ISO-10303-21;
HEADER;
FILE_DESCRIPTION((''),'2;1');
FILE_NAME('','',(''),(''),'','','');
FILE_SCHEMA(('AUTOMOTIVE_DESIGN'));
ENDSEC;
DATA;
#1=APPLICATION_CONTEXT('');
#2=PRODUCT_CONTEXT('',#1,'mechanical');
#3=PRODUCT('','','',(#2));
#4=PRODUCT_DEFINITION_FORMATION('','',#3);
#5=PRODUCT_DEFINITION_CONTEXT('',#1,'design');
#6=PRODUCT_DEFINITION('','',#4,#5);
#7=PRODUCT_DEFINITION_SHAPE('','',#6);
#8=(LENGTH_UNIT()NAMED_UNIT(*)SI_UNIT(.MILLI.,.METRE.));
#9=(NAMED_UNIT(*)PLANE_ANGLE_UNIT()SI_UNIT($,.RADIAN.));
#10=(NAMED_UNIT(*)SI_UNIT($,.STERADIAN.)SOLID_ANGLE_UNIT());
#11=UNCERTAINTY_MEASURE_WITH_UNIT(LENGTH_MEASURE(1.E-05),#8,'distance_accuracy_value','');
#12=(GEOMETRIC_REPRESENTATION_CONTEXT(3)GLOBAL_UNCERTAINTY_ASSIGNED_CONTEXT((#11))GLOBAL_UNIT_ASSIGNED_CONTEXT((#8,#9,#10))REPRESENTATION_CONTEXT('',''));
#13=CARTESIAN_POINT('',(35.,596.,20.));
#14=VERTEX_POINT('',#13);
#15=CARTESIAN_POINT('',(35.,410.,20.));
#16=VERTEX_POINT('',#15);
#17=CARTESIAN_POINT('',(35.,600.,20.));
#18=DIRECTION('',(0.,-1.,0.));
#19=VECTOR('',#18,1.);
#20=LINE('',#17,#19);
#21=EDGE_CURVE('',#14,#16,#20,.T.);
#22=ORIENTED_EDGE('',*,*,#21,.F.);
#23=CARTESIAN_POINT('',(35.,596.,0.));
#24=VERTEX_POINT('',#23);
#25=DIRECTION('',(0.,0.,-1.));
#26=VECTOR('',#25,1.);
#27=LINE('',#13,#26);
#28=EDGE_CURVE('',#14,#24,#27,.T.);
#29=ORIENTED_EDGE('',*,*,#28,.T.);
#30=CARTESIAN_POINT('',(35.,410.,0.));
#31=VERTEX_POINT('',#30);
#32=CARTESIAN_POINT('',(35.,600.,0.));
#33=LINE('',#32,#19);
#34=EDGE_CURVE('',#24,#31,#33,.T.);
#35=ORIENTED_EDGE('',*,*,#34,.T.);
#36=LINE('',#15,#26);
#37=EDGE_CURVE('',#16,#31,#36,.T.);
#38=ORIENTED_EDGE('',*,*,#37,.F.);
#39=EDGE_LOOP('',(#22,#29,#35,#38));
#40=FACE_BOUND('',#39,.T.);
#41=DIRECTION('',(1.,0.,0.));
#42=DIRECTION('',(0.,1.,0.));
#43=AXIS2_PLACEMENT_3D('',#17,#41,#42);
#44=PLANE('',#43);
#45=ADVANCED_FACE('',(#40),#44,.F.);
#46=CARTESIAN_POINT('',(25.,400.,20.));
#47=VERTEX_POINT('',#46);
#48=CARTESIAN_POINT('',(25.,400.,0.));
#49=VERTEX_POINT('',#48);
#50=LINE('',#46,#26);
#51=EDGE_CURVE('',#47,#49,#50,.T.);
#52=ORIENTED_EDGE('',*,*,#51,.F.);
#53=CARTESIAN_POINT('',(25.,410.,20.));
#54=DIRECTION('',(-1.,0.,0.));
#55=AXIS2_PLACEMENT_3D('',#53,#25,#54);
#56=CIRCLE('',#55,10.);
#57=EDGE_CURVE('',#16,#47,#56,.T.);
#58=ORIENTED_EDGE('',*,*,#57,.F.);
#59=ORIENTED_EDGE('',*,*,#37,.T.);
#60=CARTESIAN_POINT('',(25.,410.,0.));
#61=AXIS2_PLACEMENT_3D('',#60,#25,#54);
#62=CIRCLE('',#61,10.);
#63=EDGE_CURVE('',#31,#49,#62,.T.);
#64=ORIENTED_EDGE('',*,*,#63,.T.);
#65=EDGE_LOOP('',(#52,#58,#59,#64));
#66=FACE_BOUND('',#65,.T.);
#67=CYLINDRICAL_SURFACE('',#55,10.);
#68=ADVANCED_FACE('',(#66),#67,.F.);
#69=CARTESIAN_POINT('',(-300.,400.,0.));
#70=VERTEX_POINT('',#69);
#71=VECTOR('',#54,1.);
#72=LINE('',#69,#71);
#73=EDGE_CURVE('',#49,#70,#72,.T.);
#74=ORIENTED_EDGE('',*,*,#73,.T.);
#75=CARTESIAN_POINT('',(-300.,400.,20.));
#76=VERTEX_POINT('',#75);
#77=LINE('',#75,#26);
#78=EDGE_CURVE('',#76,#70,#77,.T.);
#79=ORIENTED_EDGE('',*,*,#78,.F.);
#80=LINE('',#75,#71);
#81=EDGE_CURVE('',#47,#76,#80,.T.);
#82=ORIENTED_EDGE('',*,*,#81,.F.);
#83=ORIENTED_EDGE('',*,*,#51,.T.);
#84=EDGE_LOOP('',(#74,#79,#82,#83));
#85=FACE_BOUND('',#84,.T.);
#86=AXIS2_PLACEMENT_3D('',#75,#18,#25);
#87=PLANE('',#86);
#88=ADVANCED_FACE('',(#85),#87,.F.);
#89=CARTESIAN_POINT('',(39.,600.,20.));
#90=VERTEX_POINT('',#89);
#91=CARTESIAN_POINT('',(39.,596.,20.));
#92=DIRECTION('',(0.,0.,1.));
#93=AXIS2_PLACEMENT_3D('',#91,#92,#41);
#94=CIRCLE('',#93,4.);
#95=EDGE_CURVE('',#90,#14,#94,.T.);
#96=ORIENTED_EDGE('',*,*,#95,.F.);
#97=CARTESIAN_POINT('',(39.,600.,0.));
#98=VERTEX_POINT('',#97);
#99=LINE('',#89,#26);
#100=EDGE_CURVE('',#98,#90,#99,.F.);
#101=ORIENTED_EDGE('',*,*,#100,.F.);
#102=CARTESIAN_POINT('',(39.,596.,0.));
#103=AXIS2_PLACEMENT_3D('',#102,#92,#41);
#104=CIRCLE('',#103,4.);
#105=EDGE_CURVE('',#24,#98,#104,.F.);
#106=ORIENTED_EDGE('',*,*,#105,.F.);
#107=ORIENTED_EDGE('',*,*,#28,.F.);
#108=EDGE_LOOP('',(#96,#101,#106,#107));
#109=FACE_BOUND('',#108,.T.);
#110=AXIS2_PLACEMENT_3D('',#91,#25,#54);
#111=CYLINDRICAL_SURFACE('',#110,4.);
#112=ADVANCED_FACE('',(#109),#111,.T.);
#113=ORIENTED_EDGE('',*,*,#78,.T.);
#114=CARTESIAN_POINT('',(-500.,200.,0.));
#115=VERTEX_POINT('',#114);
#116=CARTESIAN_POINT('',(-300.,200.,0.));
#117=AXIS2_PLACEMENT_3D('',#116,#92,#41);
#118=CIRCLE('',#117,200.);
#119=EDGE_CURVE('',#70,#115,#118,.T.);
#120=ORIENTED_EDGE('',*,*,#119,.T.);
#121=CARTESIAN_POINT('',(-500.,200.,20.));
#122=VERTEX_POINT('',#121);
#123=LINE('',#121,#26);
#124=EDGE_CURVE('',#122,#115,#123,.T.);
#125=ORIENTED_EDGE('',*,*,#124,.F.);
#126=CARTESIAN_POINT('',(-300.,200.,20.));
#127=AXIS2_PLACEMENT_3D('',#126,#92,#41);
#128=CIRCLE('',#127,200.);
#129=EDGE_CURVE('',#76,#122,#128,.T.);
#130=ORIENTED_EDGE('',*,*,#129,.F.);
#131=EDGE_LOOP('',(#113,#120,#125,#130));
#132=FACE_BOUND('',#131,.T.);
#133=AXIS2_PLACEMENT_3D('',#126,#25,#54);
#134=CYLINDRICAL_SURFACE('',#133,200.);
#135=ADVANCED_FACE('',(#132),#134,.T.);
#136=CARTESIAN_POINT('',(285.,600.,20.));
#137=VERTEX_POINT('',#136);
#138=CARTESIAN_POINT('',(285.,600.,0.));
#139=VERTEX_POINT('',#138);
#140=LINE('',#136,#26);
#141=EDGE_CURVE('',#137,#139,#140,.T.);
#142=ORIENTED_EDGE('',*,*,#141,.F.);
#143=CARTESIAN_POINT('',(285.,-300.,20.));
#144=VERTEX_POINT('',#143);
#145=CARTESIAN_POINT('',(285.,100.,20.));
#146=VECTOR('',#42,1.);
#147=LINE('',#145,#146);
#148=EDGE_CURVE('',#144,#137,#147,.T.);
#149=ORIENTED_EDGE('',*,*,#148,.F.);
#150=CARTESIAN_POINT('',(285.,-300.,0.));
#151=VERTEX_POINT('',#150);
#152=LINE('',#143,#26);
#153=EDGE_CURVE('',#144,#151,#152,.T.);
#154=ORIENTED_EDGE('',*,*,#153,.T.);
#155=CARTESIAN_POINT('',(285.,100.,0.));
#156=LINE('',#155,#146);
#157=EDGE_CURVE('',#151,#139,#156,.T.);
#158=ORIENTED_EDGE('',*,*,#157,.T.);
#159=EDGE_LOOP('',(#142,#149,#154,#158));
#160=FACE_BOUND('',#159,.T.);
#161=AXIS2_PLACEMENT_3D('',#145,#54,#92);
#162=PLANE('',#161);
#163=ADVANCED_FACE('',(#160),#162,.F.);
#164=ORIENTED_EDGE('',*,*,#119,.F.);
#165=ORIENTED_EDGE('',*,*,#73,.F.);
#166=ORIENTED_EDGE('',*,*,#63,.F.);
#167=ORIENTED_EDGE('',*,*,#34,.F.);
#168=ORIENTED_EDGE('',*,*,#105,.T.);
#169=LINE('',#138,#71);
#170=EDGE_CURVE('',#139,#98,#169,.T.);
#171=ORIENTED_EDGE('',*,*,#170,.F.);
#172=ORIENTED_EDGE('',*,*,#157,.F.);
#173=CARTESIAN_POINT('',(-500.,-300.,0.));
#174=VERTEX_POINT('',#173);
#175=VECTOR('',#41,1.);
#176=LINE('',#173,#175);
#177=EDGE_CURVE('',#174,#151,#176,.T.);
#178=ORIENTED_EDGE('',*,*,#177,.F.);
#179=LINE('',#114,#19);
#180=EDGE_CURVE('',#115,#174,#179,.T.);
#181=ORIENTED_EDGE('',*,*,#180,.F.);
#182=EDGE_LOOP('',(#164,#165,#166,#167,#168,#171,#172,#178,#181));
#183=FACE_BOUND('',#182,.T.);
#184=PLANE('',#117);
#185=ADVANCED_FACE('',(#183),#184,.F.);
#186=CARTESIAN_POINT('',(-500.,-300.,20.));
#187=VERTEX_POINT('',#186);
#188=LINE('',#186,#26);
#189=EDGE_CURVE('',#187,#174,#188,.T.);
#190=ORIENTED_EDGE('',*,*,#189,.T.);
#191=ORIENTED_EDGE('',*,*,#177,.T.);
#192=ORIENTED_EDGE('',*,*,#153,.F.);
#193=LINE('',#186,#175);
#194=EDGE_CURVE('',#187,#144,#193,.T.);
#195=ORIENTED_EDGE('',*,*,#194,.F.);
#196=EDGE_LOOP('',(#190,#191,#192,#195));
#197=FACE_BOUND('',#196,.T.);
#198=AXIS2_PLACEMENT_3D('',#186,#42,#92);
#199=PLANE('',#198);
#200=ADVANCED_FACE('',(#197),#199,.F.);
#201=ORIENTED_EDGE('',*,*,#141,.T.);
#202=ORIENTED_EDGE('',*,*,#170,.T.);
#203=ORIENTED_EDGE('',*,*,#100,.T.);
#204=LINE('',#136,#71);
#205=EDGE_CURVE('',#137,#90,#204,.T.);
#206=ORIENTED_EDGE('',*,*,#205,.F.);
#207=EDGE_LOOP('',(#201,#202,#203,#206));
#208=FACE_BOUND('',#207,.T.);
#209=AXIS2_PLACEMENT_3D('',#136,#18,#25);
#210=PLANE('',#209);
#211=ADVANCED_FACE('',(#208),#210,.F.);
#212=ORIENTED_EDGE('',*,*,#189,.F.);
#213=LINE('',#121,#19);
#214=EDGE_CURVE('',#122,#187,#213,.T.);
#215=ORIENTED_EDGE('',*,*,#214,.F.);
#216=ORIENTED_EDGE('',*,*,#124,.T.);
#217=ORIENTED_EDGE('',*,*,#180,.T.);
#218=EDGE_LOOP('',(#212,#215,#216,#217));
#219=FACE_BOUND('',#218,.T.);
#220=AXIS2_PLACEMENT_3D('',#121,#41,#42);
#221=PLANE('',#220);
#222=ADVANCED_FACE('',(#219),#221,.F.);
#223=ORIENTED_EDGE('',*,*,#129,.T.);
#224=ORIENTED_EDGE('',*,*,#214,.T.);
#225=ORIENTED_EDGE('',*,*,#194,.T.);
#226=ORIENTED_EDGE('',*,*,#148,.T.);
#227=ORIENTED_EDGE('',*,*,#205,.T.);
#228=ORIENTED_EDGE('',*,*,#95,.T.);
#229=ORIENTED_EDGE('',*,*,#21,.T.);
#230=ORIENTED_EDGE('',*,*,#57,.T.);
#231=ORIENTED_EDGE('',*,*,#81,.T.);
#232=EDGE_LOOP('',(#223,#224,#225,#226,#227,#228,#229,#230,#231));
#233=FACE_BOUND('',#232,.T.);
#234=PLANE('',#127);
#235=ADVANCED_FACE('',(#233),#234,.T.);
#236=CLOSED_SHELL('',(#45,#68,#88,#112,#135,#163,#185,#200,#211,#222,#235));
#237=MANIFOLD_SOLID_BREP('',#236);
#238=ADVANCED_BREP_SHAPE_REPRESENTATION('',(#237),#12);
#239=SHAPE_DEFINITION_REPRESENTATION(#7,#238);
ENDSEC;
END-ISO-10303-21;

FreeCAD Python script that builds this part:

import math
import FreeCAD as App
import Part
import Sketcher
from FreeCAD import Vector


def edges_at(feature, points):
    """Names of the edges that pass closest to the given points."""
    edges = feature.Shape.Edges
    near = lambda p: min(range(len(edges)), key=lambda i: edges[i].distToShape(Part.Vertex(*p))[0])
    return sorted({f"Edge{near(p) + 1}" for p in points})

doc = App.newDocument("Part")
params = doc.addObject("Spreadsheet::Sheet", "Params")
for row, (alias, value) in enumerate([
    ("sketch1_radius", "200 mm"),
    ("sketch1_radius2", "10 mm"),
    ("sketch1_width", "325 mm"),
    ("sketch1_width2", "785 mm"),
    ("sketch1_height", "500 mm"),
    ("pad1_length", "20 mm"),
    ("fillet_radius", "4 mm"),
], start=1):
    params.set(f"A{row}", alias)
    params.set(f"B{row}", "=" + value)
    params.setAlias(f"B{row}", alias)

body = doc.addObject("PartDesign::Body", "Body")

# Sketch on XY plane
sketch1 = body.newObject("Sketcher::SketchObject", "Sketch")
sketch1.AttachmentSupport = (doc.getObject("XY_Plane"), [""])
sketch1.MapMode = "FlatFace"
sketch1.addGeometry(Part.LineSegment(Vector(25, 400, 0), Vector(-300, 400, 0)), False)
sketch1.addGeometry(Part.ArcOfCircle(Part.Circle(Vector(-300, 200, 0), Vector(0, 0, 1), 200), math.radians(90), math.radians(180)), False)
sketch1.addGeometry(Part.LineSegment(Vector(-500, 200, 0), Vector(-500, -300, 0)), False)
sketch1.addGeometry(Part.LineSegment(Vector(-500, -300, 0), Vector(285, -300, 0)), False)
sketch1.addGeometry(Part.LineSegment(Vector(285, -300, 0), Vector(285, 600, 0)), False)
sketch1.addGeometry(Part.LineSegment(Vector(285, 600, 0), Vector(35, 600, 0)), False)
sketch1.addGeometry(Part.LineSegment(Vector(35, 600, 0), Vector(35, 410, 0)), False)
sketch1.addGeometry(Part.ArcOfCircle(Part.Circle(Vector(25, 410, 0), Vector(0, 0, 1), 10), math.radians(-90), math.radians(0)), False)
sketch1.addConstraint(Sketcher.Constraint("Tangent", 0, 2, 1, 1))
sketch1.addConstraint(Sketcher.Constraint("Tangent", 1, 2, 2, 1))
sketch1.addConstraint(Sketcher.Constraint("Coincident", 2, 2, 3, 1))
sketch1.addConstraint(Sketcher.Constraint("Coincident", 3, 2, 4, 1))
sketch1.addConstraint(Sketcher.Constraint("Coincident", 4, 2, 5, 1))
sketch1.addConstraint(Sketcher.Constraint("Coincident", 5, 2, 6, 1))
sketch1.addConstraint(Sketcher.Constraint("Tangent", 6, 2, 7, 2))
sketch1.addConstraint(Sketcher.Constraint("Tangent", 7, 1, 0, 1))
sketch1.addConstraint(Sketcher.Constraint("Horizontal", 0))
sketch1.addConstraint(Sketcher.Constraint("Vertical", 2))
sketch1.addConstraint(Sketcher.Constraint("Horizontal", 3))
sketch1.addConstraint(Sketcher.Constraint("Vertical", 4))
sketch1.addConstraint(Sketcher.Constraint("Horizontal", 5))
sketch1.addConstraint(Sketcher.Constraint("Vertical", 6))
sketch1.addConstraint(Sketcher.Constraint("Radius", 1, 200.0))
sketch1.addConstraint(Sketcher.Constraint("Radius", 7, 10.0))
sketch1.addConstraint(Sketcher.Constraint("DistanceX", 0, 2, 0, 1, 325.0))
sketch1.addConstraint(Sketcher.Constraint("DistanceX", 3, 1, 3, 2, 785.0))
sketch1.addConstraint(Sketcher.Constraint("DistanceY", 2, 2, 2, 1, 500.0))
sketch1.addConstraint(Sketcher.Constraint("DistanceY", 4, 1, 4, 2, 900.0))
sketch1.addConstraint(Sketcher.Constraint("DistanceX", 1, 3, -1, 1, 300.0))
sketch1.addConstraint(Sketcher.Constraint("DistanceY", -1, 1, 1, 3, 200.0))
sketch1.setExpression("Constraints[14]", "Params.sketch1_radius")
sketch1.setExpression("Constraints[15]", "Params.sketch1_radius2")
sketch1.setExpression("Constraints[16]", "Params.sketch1_width")
sketch1.setExpression("Constraints[17]", "Params.sketch1_width2")
sketch1.setExpression("Constraints[18]", "Params.sketch1_height")
pad1 = body.newObject("PartDesign::Pad", "Pad")
pad1.Profile = sketch1
pad1.setExpression("Length", "Params.pad1_length")
doc.recompute()

fillet = body.newObject("PartDesign::Fillet", "Fillet")
fillet.Base = (pad1, edges_at(pad1, [(35, 600, 10)]))
fillet.setExpression("Radius", "Params.fillet_radius")

doc.recompute()
